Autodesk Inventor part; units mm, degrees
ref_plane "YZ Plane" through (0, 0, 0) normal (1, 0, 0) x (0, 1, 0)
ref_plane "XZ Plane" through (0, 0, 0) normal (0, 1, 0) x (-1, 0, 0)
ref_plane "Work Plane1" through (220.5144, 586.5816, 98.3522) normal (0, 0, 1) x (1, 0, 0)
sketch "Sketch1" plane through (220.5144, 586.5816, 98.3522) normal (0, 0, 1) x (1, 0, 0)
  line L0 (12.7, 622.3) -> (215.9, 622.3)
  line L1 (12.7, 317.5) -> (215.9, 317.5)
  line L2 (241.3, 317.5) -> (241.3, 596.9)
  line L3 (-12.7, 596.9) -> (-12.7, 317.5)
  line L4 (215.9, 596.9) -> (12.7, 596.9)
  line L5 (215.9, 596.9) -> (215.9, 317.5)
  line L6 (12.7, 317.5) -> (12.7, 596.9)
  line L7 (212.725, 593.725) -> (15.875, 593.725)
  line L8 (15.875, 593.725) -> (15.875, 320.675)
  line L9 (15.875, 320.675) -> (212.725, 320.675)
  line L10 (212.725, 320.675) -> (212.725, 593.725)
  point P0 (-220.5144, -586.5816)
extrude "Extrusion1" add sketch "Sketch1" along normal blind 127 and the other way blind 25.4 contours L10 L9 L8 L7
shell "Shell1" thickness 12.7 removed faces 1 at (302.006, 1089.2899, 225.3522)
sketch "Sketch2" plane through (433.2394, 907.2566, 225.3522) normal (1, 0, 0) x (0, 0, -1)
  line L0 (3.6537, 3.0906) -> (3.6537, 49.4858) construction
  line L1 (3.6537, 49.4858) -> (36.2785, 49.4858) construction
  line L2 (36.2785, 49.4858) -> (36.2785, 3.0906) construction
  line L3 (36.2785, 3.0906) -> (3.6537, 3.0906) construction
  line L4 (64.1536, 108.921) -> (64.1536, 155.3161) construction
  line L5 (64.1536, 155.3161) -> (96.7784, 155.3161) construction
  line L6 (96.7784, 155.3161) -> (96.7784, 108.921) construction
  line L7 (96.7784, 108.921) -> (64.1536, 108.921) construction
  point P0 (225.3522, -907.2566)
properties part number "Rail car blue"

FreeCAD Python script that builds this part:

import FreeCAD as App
import Part
import Sketcher
from FreeCAD import Vector
Q = App.Units.Quantity


def faces_at(feature, points):
    """Names of the faces that lie closest to the given points."""
    faces = feature.Shape.Faces
    near = lambda p: min(range(len(faces)), key=lambda i: faces[i].distToShape(Part.Vertex(*p))[0])
    return sorted({f"Face{near(p) + 1}" for p in points})


def add_polygon(sketch, points):
    """Adds a closed chain of lines whose ends are joined by coincident constraints."""
    first, n = sketch.GeometryCount, len(points)
    for a, b in zip(points, points[1:] + points[:1]):
        sketch.addGeometry(Part.LineSegment(App.Vector(*a, 0), App.Vector(*b, 0)), False)
    for i in range(n):
        sketch.addConstraint(Sketcher.Constraint("Coincident", first + i, 2, first + (i + 1) % n, 1))

doc = App.newDocument("Part")
body = doc.addObject("PartDesign::Body", "Body")

# Sketch on XY plane
sketch1 = body.newObject("Sketcher::SketchObject", "Sketch")
sketch1.AttachmentSupport = (doc.getObject("XY_Plane"), [""])
sketch1.MapMode = "FlatFace"
sketch1.AttachmentOffset = App.Placement(Vector(0, 0, 98.3522), App.Rotation())
add_polygon(sketch1, [(433, 907), (433, 1180), (236, 1180), (236, 907)])  # lines 0-3
sketch1.addConstraint([
    Sketcher.Constraint("Vertical", 0),
    Sketcher.Constraint("Horizontal", 1),
    Sketcher.Constraint("Vertical", 2),
    Sketcher.Constraint("Horizontal", 3),
    Sketcher.Constraint("DistanceX", 1, 2, 1, 1, Q("7.75 in")),
    Sketcher.Constraint("DistanceY", 0, 1, 0, 2, Q("10.75 in")),
    Sketcher.Constraint("DistanceX", -1, 1, 0, 2, 433.2394),
    Sketcher.Constraint("DistanceY", -1, 1, 0, 2, 1180.3066),
])
pad1 = body.newObject("PartDesign::Pad", "Pad")
pad1.Profile = sketch1
pad1.Type = "TwoLengths"
pad1.Length = Q("5 in")
pad1.Length2 = Q("1 in")
doc.recompute()

thickness = body.newObject("PartDesign::Thickness", "Thickness")
thickness.Base = (pad1, faces_at(pad1, [(302.006, 1089.29, 225.352)]))
thickness.Value = Q("0.5 in")
thickness.Reversed = True
thickness.Join = "Intersection"

doc.recompute()
